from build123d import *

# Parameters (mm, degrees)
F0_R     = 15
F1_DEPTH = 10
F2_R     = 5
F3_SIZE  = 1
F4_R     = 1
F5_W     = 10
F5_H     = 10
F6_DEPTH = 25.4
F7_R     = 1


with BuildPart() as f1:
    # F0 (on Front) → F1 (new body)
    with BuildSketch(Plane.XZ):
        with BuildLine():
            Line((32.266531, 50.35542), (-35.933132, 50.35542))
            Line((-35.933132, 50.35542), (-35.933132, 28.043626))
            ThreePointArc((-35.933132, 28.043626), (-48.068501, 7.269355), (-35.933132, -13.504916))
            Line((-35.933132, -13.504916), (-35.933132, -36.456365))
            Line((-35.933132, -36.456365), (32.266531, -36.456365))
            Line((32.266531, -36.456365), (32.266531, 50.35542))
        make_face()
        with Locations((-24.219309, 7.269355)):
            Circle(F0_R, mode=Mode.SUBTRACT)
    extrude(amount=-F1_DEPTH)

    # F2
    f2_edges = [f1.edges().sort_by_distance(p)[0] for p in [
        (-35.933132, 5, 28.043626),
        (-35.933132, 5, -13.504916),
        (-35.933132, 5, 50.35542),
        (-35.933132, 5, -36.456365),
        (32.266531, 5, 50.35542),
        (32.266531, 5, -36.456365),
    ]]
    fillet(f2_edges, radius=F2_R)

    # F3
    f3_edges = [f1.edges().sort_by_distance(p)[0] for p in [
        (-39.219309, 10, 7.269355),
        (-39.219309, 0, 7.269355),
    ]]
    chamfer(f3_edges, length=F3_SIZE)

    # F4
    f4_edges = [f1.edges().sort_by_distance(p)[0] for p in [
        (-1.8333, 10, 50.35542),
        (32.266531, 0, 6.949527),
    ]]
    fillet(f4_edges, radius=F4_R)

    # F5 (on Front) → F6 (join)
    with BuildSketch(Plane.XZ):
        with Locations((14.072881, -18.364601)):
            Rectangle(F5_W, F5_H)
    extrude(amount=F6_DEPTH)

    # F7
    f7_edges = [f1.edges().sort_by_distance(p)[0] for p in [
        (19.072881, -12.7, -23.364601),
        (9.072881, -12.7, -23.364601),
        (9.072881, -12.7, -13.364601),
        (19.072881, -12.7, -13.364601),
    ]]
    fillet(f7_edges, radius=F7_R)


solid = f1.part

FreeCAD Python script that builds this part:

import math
import FreeCAD as App
import Part
import Sketcher


def edges_at(feature, points):
    """Names of the edges that pass closest to the given points."""
    edges = feature.Shape.Edges
    near = lambda p: min(range(len(edges)), key=lambda i: edges[i].distToShape(Part.Vertex(*p))[0])
    return sorted({f"Edge{near(p) + 1}" for p in points})


def add_polygon(sketch, points):
    """Adds a closed chain of lines whose ends are joined by coincident constraints."""
    first, n = sketch.GeometryCount, len(points)
    for a, b in zip(points, points[1:] + points[:1]):
        sketch.addGeometry(Part.LineSegment(App.Vector(*a, 0), App.Vector(*b, 0)), False)
    for i in range(n):
        sketch.addConstraint(Sketcher.Constraint("Coincident", first + i, 2, first + (i + 1) % n, 1))

doc = App.newDocument("Part")
body = doc.addObject("PartDesign::Body", "Body")

# Sketch on XZ plane
sketch1 = body.newObject("Sketcher::SketchObject", "Sketch")
sketch1.AttachmentSupport = (doc.getObject("XZ_Plane"), [""])
sketch1.MapMode = "FlatFace"
sketch1.addGeometry([
    Part.LineSegment(App.Vector(32, 50, 0), App.Vector(-36, 50, 0)),  # 0
    Part.LineSegment(App.Vector(-36, 50, 0), App.Vector(-36, 28, 0)),  # 1
    Part.ArcOfCircle(Part.Circle(App.Vector(-24, 7, 0), App.Vector(0, 0, 1), 24), math.radians(119), math.radians(241)),  # 2
    Part.LineSegment(App.Vector(-36, -14, 0), App.Vector(-36, -36, 0)),  # 3
    Part.LineSegment(App.Vector(-36, -36, 0), App.Vector(32, -36, 0)),  # 4
    Part.LineSegment(App.Vector(32, -36, 0), App.Vector(32, 50, 0)),  # 5
    Part.Circle(App.Vector(-24, 7, 0), App.Vector(0, 0, 1), 15),  # 6
], False)
sketch1.addConstraint([
    Sketcher.Constraint("Coincident", 0, 2, 1, 1),
    Sketcher.Constraint("Coincident", 1, 2, 2, 1),
    Sketcher.Constraint("Coincident", 2, 2, 3, 1),
    Sketcher.Constraint("Coincident", 3, 2, 4, 1),
    Sketcher.Constraint("Coincident", 4, 2, 5, 1),
    Sketcher.Constraint("Coincident", 5, 2, 0, 1),
    Sketcher.Constraint("Horizontal", 0),
    Sketcher.Constraint("Vertical", 1),
    Sketcher.Constraint("Vertical", 3),
    Sketcher.Constraint("Horizontal", 4),
    Sketcher.Constraint("Vertical", 5),
    Sketcher.Constraint("Coincident", 6, 3, 2, 3),
    Sketcher.Constraint("Vertical", 1, 2, 2, 2),
    Sketcher.Constraint("Diameter", 6, 30.0),
    Sketcher.Constraint("Radius", 2, 23.849193),
    Sketcher.Constraint("DistanceY", 3, 2, 3, 1, 22.951449),
    Sketcher.Constraint("DistanceX", 0, 2, 0, 1, 68.199663),
    Sketcher.Constraint("DistanceY", 1, 2, 1, 1, 22.311794),
    Sketcher.Constraint("DistanceY", 5, 1, 5, 2, 86.811785),
    Sketcher.Constraint("DistanceX", 6, 3, -1, 1, 24.219309),
    Sketcher.Constraint("DistanceY", -1, 1, 0, 2, 50.35542),
])
pad1 = body.newObject("PartDesign::Pad", "Pad")
pad1.Profile = sketch1
pad1.Length = 10
pad1.Reversed = True
doc.recompute()

fillet = body.newObject("PartDesign::Fillet", "Fillet")
fillet.Base = (pad1, edges_at(pad1, [
    (-35.933, 5, 28.044),
    (-35.933, 5, -13.505),
    (-35.933, 5, 50.355),
    (-35.933, 5, -36.456),
    (32.267, 5, 50.355),
    (32.267, 5, -36.456),
]))
fillet.Radius = 5
doc.recompute()

chamfer = body.newObject("PartDesign::Chamfer", "Chamfer")
chamfer.Base = (fillet, edges_at(fillet, [(-39.219, 10, 7.269), (-39.219, 0, 7.269)]))
chamfer.Size = 1
doc.recompute()

fillet2 = body.newObject("PartDesign::Fillet", "Fillet001")
fillet2.Base = (chamfer, edges_at(chamfer, [(-1.833, 10, 50.355), (32.267, 0, 6.95)]))
fillet2.Radius = 1

# Sketch on XZ plane
sketch2 = body.newObject("Sketcher::SketchObject", "Sketch001")
sketch2.AttachmentSupport = (doc.getObject("XZ_Plane"), [""])
sketch2.MapMode = "FlatFace"
add_polygon(sketch2, [(9, -13), (9, -23), (19, -23), (19, -13)])  # lines 0-3
sketch2.addConstraint([
    Sketcher.Constraint("Vertical", 0),
    Sketcher.Constraint("Horizontal", 1),
    Sketcher.Constraint("Vertical", 2),
    Sketcher.Constraint("Horizontal", 3),
    Sketcher.Constraint("Equal", 3, 0),
    Sketcher.Constraint("DistanceX", 1, 1, 1, 2, 10.0),
    Sketcher.Constraint("DistanceY", 0, 2, -1, 1, 23.364601),
    Sketcher.Constraint("DistanceX", -1, 1, 0, 2, 9.072881),
])
pad2 = body.newObject("PartDesign::Pad", "Pad001")
pad2.Profile = sketch2
pad2.Length = 25.4
doc.recompute()

fillet3 = body.newObject("PartDesign::Fillet", "Fillet002")
fillet3.Base = (pad2, edges_at(pad2, [
    (19.073, -12.7, -23.365),
    (9.073, -12.7, -23.365),
    (9.073, -12.7, -13.365),
    (19.073, -12.7, -13.365),
]))
fillet3.Radius = 1

doc.recompute()
